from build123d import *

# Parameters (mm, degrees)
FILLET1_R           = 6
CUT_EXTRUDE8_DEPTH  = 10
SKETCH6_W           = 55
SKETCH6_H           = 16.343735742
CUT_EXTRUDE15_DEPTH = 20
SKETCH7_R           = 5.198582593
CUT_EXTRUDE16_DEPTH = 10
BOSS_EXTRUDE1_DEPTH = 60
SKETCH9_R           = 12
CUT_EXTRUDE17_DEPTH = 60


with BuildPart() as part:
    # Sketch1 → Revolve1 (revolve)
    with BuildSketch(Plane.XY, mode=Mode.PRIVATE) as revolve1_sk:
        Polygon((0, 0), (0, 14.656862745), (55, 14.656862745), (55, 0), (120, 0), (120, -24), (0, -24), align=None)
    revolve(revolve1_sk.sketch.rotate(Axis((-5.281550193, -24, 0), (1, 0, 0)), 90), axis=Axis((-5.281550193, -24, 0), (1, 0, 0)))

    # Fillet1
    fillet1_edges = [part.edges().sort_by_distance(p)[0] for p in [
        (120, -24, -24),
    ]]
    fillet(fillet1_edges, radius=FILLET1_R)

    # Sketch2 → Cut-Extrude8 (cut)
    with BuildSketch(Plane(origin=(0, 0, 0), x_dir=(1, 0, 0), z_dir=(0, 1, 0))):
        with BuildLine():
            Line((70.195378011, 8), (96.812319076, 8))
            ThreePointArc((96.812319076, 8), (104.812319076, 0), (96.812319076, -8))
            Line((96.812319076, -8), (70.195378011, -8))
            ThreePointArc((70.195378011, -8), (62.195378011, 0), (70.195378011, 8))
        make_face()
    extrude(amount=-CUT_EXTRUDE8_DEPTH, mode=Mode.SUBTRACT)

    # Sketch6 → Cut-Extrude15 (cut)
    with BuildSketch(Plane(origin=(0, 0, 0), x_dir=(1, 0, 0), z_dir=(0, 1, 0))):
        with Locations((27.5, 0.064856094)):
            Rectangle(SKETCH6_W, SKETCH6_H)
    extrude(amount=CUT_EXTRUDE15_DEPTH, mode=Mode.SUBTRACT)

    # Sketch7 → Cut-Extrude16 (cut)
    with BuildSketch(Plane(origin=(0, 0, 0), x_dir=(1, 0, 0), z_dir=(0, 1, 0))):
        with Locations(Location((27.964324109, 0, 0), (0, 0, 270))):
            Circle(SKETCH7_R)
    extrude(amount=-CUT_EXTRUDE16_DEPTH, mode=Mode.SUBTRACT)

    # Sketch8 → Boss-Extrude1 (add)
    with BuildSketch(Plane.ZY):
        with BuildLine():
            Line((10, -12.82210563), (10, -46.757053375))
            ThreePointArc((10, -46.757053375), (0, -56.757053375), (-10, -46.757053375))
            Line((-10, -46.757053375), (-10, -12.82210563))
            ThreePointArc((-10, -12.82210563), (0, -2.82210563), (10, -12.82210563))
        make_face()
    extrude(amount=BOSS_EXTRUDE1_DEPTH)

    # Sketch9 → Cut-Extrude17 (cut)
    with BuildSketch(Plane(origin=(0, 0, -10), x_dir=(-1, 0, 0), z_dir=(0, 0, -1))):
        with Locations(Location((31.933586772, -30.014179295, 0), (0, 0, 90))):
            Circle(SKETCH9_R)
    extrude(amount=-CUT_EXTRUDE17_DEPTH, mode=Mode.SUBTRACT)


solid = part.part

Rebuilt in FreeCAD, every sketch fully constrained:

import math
import FreeCAD as App
import Part
import Sketcher
from FreeCAD import Vector
Q = App.Units.Quantity


def edges_at(feature, points):
    """Names of the edges that pass closest to the given points."""
    edges = feature.Shape.Edges
    near = lambda p: min(range(len(edges)), key=lambda i: edges[i].distToShape(Part.Vertex(*p))[0])
    return sorted({f"Edge{near(p) + 1}" for p in points})


def add_polygon(sketch, points):
    """Adds a closed chain of lines whose ends are joined by coincident constraints."""
    first, n = sketch.GeometryCount, len(points)
    for a, b in zip(points, points[1:] + points[:1]):
        sketch.addGeometry(Part.LineSegment(App.Vector(*a, 0), App.Vector(*b, 0)), False)
    for i in range(n):
        sketch.addConstraint(Sketcher.Constraint("Coincident", first + i, 2, first + (i + 1) % n, 1))

doc = App.newDocument("Part")
body = doc.addObject("PartDesign::Body", "Body")

sketch1 = doc.addObject("Sketcher::SketchObject", "Sketch")
body.addObject(sketch1)
sketch1.AttachmentSupport = (doc.XY_Plane, [""])
sketch1.MapMode = "FlatFace"
add_polygon(sketch1, [(0, 15), (0, -24), (120, -24), (120, 0), (55, 0), (55, 15)])
sketch1.addGeometry(Part.LineSegment(Vector(0, -24, 0), Vector(120, -24, 0)), True)
sketch1.addConstraint(Sketcher.Constraint("Vertical", 0))
sketch1.addConstraint(Sketcher.Constraint("Horizontal", 1))
sketch1.addConstraint(Sketcher.Constraint("Vertical", 2))
sketch1.addConstraint(Sketcher.Constraint("Horizontal", 3))
sketch1.addConstraint(Sketcher.Constraint("Vertical", 4))
sketch1.addConstraint(Sketcher.Constraint("Horizontal", 5))
sketch1.addConstraint(Sketcher.Constraint("Horizontal", 6))
sketch1.addConstraint(Sketcher.Constraint("Coincident", 6, 1, 0, 2))
sketch1.addConstraint(Sketcher.Constraint("PointOnObject", 0, 2, -2))
sketch1.addConstraint(Sketcher.Constraint("PointOnObject", 2, 2, -1))
sketch1.addConstraint(Sketcher.Constraint("Vertical", 2, 2, 6, 2))
sketch1.addConstraint(Sketcher.Constraint("DistanceX", 1, 1, 1, 2, Q("120 mm")))
sketch1.addConstraint(Sketcher.Constraint("DistanceX", 3, 2, 3, 1, Q("65 mm")))
sketch1.addConstraint(Sketcher.Constraint("DistanceY", 2, 1, 2, 2, Q("24 mm")))
sketch1.addConstraint(Sketcher.Constraint("DistanceY", 0, 2, 0, 1, Q("38.656863 mm")))
revolution = doc.addObject("PartDesign::Revolution", "Revolution")
body.addObject(revolution)
revolution.Profile = sketch1
revolution.ReferenceAxis = (sketch1, ["Axis0"])
revolution.Angle = 360
doc.recompute()

fillet = doc.addObject("PartDesign::Fillet", "Fillet")
body.addObject(fillet)
fillet.Base = (revolution, edges_at(revolution, [(120, -24, -24)]))
fillet.Radius = 6

sketch2 = doc.addObject("Sketcher::SketchObject", "Sketch001")
body.addObject(sketch2)
sketch2.AttachmentSupport = (doc.XZ_Plane, [""])
sketch2.MapMode = "FlatFace"
sketch2.addGeometry(Part.LineSegment(Vector(97, -8, 0), Vector(70, -8, 0)), False)
sketch2.addGeometry(Part.ArcOfCircle(Part.Circle(Vector(70, 0, 0), Vector(0, 0, 1), 8), math.radians(90), math.radians(270)), False)
sketch2.addGeometry(Part.LineSegment(Vector(70, 8, 0), Vector(97, 8, 0)), False)
sketch2.addGeometry(Part.ArcOfCircle(Part.Circle(Vector(97, 0, 0), Vector(0, 0, 1), 8), math.radians(-90), math.radians(90)), False)
sketch2.addConstraint(Sketcher.Constraint("Tangent", 0, 2, 1, 2))
sketch2.addConstraint(Sketcher.Constraint("Tangent", 1, 1, 2, 1))
sketch2.addConstraint(Sketcher.Constraint("Tangent", 2, 2, 3, 2))
sketch2.addConstraint(Sketcher.Constraint("Tangent", 3, 1, 0, 1))
sketch2.addConstraint(Sketcher.Constraint("Horizontal", 0))
sketch2.addConstraint(Sketcher.Constraint("Horizontal", 2))
sketch2.addConstraint(Sketcher.Constraint("PointOnObject", 1, 3, -1))
sketch2.addConstraint(Sketcher.Constraint("Radius", 1, Q("8 mm")))
sketch2.addConstraint(Sketcher.Constraint("DistanceX", 0, 2, 0, 1, Q("26.616941 mm")))
sketch2.addConstraint(Sketcher.Constraint("DistanceX", -1, 1, 1, 3, Q("70.195378 mm")))
pocket1 = doc.addObject("PartDesign::Pocket", "Pocket")
body.addObject(pocket1)
pocket1.Profile = sketch2
pocket1.Length = 10
pocket1.Reversed = True

sketch3 = doc.addObject("Sketcher::SketchObject", "Sketch002")
body.addObject(sketch3)
sketch3.AttachmentSupport = (doc.XZ_Plane, [""])
sketch3.MapMode = "FlatFace"
add_polygon(sketch3, [(0, -8), (0, 8), (55, 8), (55, -8)])
sketch3.addConstraint(Sketcher.Constraint("Vertical", 0))
sketch3.addConstraint(Sketcher.Constraint("Horizontal", 1))
sketch3.addConstraint(Sketcher.Constraint("Vertical", 2))
sketch3.addConstraint(Sketcher.Constraint("Horizontal", 3))
sketch3.addConstraint(Sketcher.Constraint("PointOnObject", 0, 2, -2))
sketch3.addConstraint(Sketcher.Constraint("DistanceX", 1, 1, 1, 2, Q("55 mm")))
sketch3.addConstraint(Sketcher.Constraint("DistanceY", 0, 1, 0, 2, Q("16.343736 mm")))
sketch3.addConstraint(Sketcher.Constraint("DistanceY", -1, 1, 0, 2, Q("8.107012 mm")))
pocket2 = doc.addObject("PartDesign::Pocket", "Pocket001")
body.addObject(pocket2)
pocket2.Profile = sketch3
pocket2.Length = 20

sketch4 = doc.addObject("Sketcher::SketchObject", "Sketch003")
body.addObject(sketch4)
sketch4.AttachmentSupport = (doc.XZ_Plane, [""])
sketch4.MapMode = "FlatFace"
sketch4.addGeometry(Part.Circle(Vector(28, 0, 0), Vector(0, 0, 1), 5), False)
sketch4.addConstraint(Sketcher.Constraint("PointOnObject", 0, 3, -1))
sketch4.addConstraint(Sketcher.Constraint("Diameter", 0, Q("10.397165 mm")))
sketch4.addConstraint(Sketcher.Constraint("DistanceX", -1, 1, 0, 3, Q("27.964324 mm")))
pocket3 = doc.addObject("PartDesign::Pocket", "Pocket002")
body.addObject(pocket3)
pocket3.Profile = sketch4
pocket3.Length = 10
pocket3.Reversed = True

sketch5 = doc.addObject("Sketcher::SketchObject", "Sketch004")
body.addObject(sketch5)
sketch5.AttachmentSupport = (doc.YZ_Plane, [""])
sketch5.MapMode = "FlatFace"
sketch5.addGeometry(Part.LineSegment(Vector(-47, 10, 0), Vector(-13, 10, 0)), False)
sketch5.addGeometry(Part.ArcOfCircle(Part.Circle(Vector(-13, 0, 0), Vector(0, 0, 1), 10), math.radians(-90), math.radians(90)), False)
sketch5.addGeometry(Part.LineSegment(Vector(-13, -10, 0), Vector(-47, -10, 0)), False)
sketch5.addGeometry(Part.ArcOfCircle(Part.Circle(Vector(-47, 0, 0), Vector(0, 0, 1), 10), math.radians(90), math.radians(270)), False)
sketch5.addConstraint(Sketcher.Constraint("Tangent", 0, 2, 1, 2))
sketch5.addConstraint(Sketcher.Constraint("Tangent", 1, 1, 2, 1))
sketch5.addConstraint(Sketcher.Constraint("Tangent", 2, 2, 3, 2))
sketch5.addConstraint(Sketcher.Constraint("Tangent", 3, 1, 0, 1))
sketch5.addConstraint(Sketcher.Constraint("Horizontal", 0))
sketch5.addConstraint(Sketcher.Constraint("Horizontal", 2))
sketch5.addConstraint(Sketcher.Constraint("PointOnObject", 1, 3, -1))
sketch5.addConstraint(Sketcher.Constraint("Radius", 1, Q("10 mm")))
sketch5.addConstraint(Sketcher.Constraint("DistanceX", 0, 1, 0, 2, Q("33.934948 mm")))
sketch5.addConstraint(Sketcher.Constraint("DistanceX", 1, 3, -1, 1, Q("12.822106 mm")))
pad1 = doc.addObject("PartDesign::Pad", "Pad")
body.addObject(pad1)
pad1.Profile = sketch5
pad1.Length = 60
pad1.Reversed = True

sketch6 = doc.addObject("Sketcher::SketchObject", "Sketch005")
body.addObject(sketch6)
sketch6.AttachmentSupport = (doc.XY_Plane, [""])
sketch6.MapMode = "FlatFace"
sketch6.AttachmentOffset = App.Placement(Vector(0, 0, -10), App.Rotation())
sketch6.addGeometry(Part.Circle(Vector(-32, -30, 0), Vector(0, 0, 1), 12), False)
sketch6.addConstraint(Sketcher.Constraint("Diameter", 0, Q("24 mm")))
sketch6.addConstraint(Sketcher.Constraint("DistanceY", 0, 3, -1, 1, Q("30.014179 mm")))
sketch6.addConstraint(Sketcher.Constraint("DistanceX", 0, 3, -1, 1, Q("31.933587 mm")))
pocket4 = doc.addObject("PartDesign::Pocket", "Pocket003")
body.addObject(pocket4)
pocket4.Profile = sketch6
pocket4.Length = 60
pocket4.Reversed = True

doc.recompute()
